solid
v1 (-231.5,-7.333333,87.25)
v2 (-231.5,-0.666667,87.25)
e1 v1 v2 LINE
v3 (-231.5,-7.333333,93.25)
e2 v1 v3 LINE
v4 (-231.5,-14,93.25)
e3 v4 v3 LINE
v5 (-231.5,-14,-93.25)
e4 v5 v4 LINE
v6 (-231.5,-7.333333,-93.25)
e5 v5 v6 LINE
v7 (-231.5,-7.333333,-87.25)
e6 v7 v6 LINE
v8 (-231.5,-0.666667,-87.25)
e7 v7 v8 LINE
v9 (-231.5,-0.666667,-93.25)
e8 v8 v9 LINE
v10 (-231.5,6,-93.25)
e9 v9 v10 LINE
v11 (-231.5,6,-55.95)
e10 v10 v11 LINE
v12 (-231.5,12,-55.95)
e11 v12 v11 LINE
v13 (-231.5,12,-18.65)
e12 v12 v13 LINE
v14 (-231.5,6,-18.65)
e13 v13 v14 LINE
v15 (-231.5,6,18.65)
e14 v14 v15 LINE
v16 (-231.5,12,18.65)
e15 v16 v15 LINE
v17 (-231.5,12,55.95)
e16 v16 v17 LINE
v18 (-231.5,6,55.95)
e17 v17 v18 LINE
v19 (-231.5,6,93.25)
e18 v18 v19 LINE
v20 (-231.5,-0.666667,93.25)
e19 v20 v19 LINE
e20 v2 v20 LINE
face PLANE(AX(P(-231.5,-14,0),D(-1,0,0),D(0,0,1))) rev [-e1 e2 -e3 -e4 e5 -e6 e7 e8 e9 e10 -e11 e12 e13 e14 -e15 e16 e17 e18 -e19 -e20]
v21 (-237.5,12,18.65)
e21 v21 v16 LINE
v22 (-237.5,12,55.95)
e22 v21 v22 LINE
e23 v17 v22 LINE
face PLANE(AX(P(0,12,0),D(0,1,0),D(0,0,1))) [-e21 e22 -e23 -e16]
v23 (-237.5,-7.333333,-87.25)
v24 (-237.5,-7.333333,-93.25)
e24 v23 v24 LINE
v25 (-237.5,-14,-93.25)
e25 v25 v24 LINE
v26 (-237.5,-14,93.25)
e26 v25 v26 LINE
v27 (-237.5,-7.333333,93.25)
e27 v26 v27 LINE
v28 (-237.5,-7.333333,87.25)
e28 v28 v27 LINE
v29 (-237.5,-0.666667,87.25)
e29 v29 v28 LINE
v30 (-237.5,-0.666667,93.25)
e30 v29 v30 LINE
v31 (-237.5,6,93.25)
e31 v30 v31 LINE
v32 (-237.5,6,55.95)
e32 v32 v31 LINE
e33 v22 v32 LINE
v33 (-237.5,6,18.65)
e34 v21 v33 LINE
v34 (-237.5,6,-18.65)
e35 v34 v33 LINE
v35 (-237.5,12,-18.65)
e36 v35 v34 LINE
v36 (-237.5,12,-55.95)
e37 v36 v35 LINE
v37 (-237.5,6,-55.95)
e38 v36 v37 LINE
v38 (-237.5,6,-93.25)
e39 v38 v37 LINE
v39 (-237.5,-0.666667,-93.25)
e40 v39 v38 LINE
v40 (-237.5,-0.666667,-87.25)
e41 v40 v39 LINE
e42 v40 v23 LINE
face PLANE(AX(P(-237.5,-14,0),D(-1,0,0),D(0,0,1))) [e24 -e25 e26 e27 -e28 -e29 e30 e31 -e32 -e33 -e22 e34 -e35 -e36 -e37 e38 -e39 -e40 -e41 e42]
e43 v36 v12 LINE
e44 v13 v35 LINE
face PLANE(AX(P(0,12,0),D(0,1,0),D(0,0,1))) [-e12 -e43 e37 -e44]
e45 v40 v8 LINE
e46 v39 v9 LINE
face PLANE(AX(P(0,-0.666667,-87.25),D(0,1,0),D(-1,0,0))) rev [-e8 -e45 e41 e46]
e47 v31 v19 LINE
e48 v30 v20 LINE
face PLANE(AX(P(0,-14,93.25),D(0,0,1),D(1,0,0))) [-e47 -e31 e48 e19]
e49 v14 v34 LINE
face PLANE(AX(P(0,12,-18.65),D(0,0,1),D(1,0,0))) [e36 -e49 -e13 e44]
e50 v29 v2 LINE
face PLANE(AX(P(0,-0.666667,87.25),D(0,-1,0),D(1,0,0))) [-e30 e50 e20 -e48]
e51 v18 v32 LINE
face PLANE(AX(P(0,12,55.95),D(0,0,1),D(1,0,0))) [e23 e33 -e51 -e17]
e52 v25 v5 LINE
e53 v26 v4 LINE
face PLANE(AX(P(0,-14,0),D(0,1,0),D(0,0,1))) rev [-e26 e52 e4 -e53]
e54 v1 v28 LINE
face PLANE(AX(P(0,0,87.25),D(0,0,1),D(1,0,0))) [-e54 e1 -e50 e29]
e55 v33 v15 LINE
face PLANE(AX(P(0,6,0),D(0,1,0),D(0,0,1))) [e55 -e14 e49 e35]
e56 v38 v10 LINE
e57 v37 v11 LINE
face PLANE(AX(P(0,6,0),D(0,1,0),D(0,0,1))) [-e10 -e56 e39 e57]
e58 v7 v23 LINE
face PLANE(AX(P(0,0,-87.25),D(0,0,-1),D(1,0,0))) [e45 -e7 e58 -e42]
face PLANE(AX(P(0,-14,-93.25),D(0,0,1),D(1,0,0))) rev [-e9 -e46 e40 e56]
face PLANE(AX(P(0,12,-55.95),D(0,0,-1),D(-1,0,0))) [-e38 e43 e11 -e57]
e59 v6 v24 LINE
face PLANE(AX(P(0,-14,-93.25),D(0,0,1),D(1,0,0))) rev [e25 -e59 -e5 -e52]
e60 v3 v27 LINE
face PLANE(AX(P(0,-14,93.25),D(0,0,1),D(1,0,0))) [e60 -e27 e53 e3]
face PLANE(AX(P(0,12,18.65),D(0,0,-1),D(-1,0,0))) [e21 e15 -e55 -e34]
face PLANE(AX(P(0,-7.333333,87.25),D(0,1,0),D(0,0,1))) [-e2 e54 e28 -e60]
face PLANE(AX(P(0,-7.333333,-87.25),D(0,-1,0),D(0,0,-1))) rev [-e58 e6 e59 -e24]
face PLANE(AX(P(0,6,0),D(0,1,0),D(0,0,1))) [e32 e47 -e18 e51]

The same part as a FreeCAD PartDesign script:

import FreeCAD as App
import Part
import Sketcher
from FreeCAD import Vector
Q = App.Units.Quantity


def add_polygon(sketch, points):
    """Adds a closed chain of lines whose ends are joined by coincident constraints."""
    first, n = sketch.GeometryCount, len(points)
    for a, b in zip(points, points[1:] + points[:1]):
        sketch.addGeometry(Part.LineSegment(App.Vector(*a, 0), App.Vector(*b, 0)), False)
    for i in range(n):
        sketch.addConstraint(Sketcher.Constraint("Coincident", first + i, 2, first + (i + 1) % n, 1))

doc = App.newDocument("Part")
body = doc.addObject("PartDesign::Body", "Body")

# Sketch on XZ plane
sketch1 = doc.addObject("Sketcher::SketchObject", "Sketch")
body.addObject(sketch1)
sketch1.AttachmentSupport = (doc.XZ_Plane, [""])
sketch1.MapMode = "FlatFace"
add_polygon(sketch1, [(-207.5, -63.25), (-207.5, 63.25), (207.5, 63.25), (207.5, -63.25)])  # lines 0-3
sketch1.addConstraint(Sketcher.Constraint("Vertical", 0))
sketch1.addConstraint(Sketcher.Constraint("Horizontal", 1))
sketch1.addConstraint(Sketcher.Constraint("Vertical", 2))
sketch1.addConstraint(Sketcher.Constraint("Horizontal", 3))
sketch1.addConstraint(Sketcher.Constraint("Symmetric", 0, 2, 2, 2, -1, 1))
sketch1.addConstraint(Sketcher.Constraint("DistanceX", 1, 1, 1, 2, Q("415 mm")))
sketch1.addConstraint(Sketcher.Constraint("DistanceY", 0, 1, 0, 2, Q("126.5 mm")))
pad1 = doc.addObject("PartDesign::Pad", "Pad")
body.addObject(pad1)
pad1.Profile = sketch1
pad1.Length = 6
pad1.Reversed = True

# Sketch on XZ plane
sketch2 = doc.addObject("Sketcher::SketchObject", "Sketch001")
body.addObject(sketch2)
sketch2.AttachmentSupport = (doc.XZ_Plane, [""])
sketch2.MapMode = "FlatFace"
add_polygon(sketch2, [(-207.5, -63.25), (-207.5, 63.25), (207.5, 63.25), (207.5, -63.25)])  # lines 0-3
sketch2.addConstraint(Sketcher.Constraint("Vertical", 0))
sketch2.addConstraint(Sketcher.Constraint("Horizontal", 1))
sketch2.addConstraint(Sketcher.Constraint("Vertical", 2))
sketch2.addConstraint(Sketcher.Constraint("Horizontal", 3))
sketch2.addConstraint(Sketcher.Constraint("Symmetric", 0, 2, 2, 2, -1, 1))
sketch2.addConstraint(Sketcher.Constraint("DistanceX", 1, 1, 1, 2, Q("415 mm")))
sketch2.addConstraint(Sketcher.Constraint("DistanceY", 0, 1, 0, 2, Q("126.5 mm")))
pocket1 = doc.addObject("PartDesign::Pocket", "Pocket")
body.addObject(pocket1)
pocket1.Profile = sketch2
pocket1.Type = "ThroughAll"
pocket1.Midplane = True
body2 = doc.addObject("PartDesign::Body", "Body001")

# Sketch on XZ plane
sketch3 = doc.addObject("Sketcher::SketchObject", "Sketch002")
body2.addObject(sketch3)
sketch3.AttachmentSupport = (doc.getObject("XZ_Plane001"), [""])
sketch3.MapMode = "FlatFace"
sketch3.AttachmentOffset = App.Placement(Vector(0, 0, -6), App.Rotation())
add_polygon(sketch3, [(-231.5, -93.25), (-237.5, -93.25), (-237.5, 93.25), (-231.5, 93.25)])  # lines 0-3
sketch3.addConstraint(Sketcher.Constraint("Horizontal", 0))
sketch3.addConstraint(Sketcher.Constraint("Vertical", 1))
sketch3.addConstraint(Sketcher.Constraint("Horizontal", 2))
sketch3.addConstraint(Sketcher.Constraint("Vertical", 3))
sketch3.addConstraint(Sketcher.Constraint("DistanceX", 0, 2, 0, 1, Q("6 mm")))
sketch3.addConstraint(Sketcher.Constraint("DistanceY", 1, 1, 1, 2, Q("186.5 mm")))
sketch3.addConstraint(Sketcher.Constraint("DistanceX", 0, 2, -1, 1, Q("237.5 mm")))
sketch3.addConstraint(Sketcher.Constraint("DistanceY", 0, 2, -1, 1, Q("93.25 mm")))
pad2 = doc.addObject("PartDesign::Pad", "Pad001")
body2.addObject(pad2)
pad2.Profile = sketch3
pad2.Length = 20

# Sketch on XZ plane
sketch4 = doc.addObject("Sketcher::SketchObject", "Sketch003")
body2.addObject(sketch4)
sketch4.AttachmentSupport = (doc.getObject("XZ_Plane001"), [""])
sketch4.MapMode = "FlatFace"
sketch4.AttachmentOffset = App.Placement(Vector(0, 0, -6), App.Rotation())
add_polygon(sketch4, [(-237.5, 18.65), (-237.5, 55.95), (-231.5, 55.95), (-231.5, 18.65)])  # lines 0-3
add_polygon(sketch4, [(-237.5, -55.95), (-237.5, -18.65), (-231.5, -18.65), (-231.5, -55.95)])  # lines 4-7
sketch4.addConstraint(Sketcher.Constraint("Vertical", 0))
sketch4.addConstraint(Sketcher.Constraint("Horizontal", 1))
sketch4.addConstraint(Sketcher.Constraint("Vertical", 2))
sketch4.addConstraint(Sketcher.Constraint("Horizontal", 3))
sketch4.addConstraint(Sketcher.Constraint("Vertical", 4))
sketch4.addConstraint(Sketcher.Constraint("Horizontal", 5))
sketch4.addConstraint(Sketcher.Constraint("Vertical", 6))
sketch4.addConstraint(Sketcher.Constraint("Horizontal", 7))
sketch4.addConstraint(Sketcher.Constraint("Symmetric", 3, 2, 4, 2, -1))
sketch4.addConstraint(Sketcher.Constraint("Symmetric", 1, 2, 6, 2, -1))
sketch4.addConstraint(Sketcher.Constraint("DistanceX", 1, 1, 1, 2, Q("6 mm")))
sketch4.addConstraint(Sketcher.Constraint("DistanceY", 0, 1, 0, 2, Q("37.3 mm")))
sketch4.addConstraint(Sketcher.Constraint("DistanceX", 0, 2, -1, 1, Q("237.5 mm")))
sketch4.addConstraint(Sketcher.Constraint("DistanceY", 4, 2, 3, 2, Q("37.3 mm")))
pad3 = doc.addObject("PartDesign::Pad", "Pad002")
body2.addObject(pad3)
pad3.Profile = sketch4
pad3.Length = 6
pad3.Reversed = True

# Sketch on XY plane
sketch5 = doc.addObject("Sketcher::SketchObject", "Sketch004")
body2.addObject(sketch5)
sketch5.AttachmentSupport = (doc.getObject("XY_Plane001"), [""])
sketch5.MapMode = "FlatFace"
sketch5.AttachmentOffset = App.Placement(Vector(0, 0, 93.25), App.Rotation())
add_polygon(sketch5, [(-237.5, -0.666667), (-237.5, -7.333333), (-231.5, -7.333333), (-231.5, -0.666667)])  # lines 0-3
sketch5.addConstraint(Sketcher.Constraint("Vertical", 0))
sketch5.addConstraint(Sketcher.Constraint("Horizontal", 1))
sketch5.addConstraint(Sketcher.Constraint("Vertical", 2))
sketch5.addConstraint(Sketcher.Constraint("Horizontal", 3))
sketch5.addConstraint(Sketcher.Constraint("DistanceX", 1, 1, 1, 2, Q("6 mm")))
sketch5.addConstraint(Sketcher.Constraint("DistanceX", 0, 2, -1, 1, Q("237.5 mm")))
sketch5.addConstraint(Sketcher.Constraint("DistanceY", 0, 2, 0, 1, Q("6.666667 mm")))
sketch5.addConstraint(Sketcher.Constraint("DistanceY", 0, 2, -1, 1, Q("7.333333 mm")))
pocket2 = doc.addObject("PartDesign::Pocket", "Pocket001")
body2.addObject(pocket2)
pocket2.Profile = sketch5
pocket2.Length = 6
doc.recompute()

mirrored = doc.addObject("PartDesign::Mirrored", "Mirrored")
body2.addObject(mirrored)
mirrored.Originals = [pocket2]
mirrored.MirrorPlane = (doc.getObject("XY_Plane001"), [""])
body2.Tip = mirrored

doc.recompute()
